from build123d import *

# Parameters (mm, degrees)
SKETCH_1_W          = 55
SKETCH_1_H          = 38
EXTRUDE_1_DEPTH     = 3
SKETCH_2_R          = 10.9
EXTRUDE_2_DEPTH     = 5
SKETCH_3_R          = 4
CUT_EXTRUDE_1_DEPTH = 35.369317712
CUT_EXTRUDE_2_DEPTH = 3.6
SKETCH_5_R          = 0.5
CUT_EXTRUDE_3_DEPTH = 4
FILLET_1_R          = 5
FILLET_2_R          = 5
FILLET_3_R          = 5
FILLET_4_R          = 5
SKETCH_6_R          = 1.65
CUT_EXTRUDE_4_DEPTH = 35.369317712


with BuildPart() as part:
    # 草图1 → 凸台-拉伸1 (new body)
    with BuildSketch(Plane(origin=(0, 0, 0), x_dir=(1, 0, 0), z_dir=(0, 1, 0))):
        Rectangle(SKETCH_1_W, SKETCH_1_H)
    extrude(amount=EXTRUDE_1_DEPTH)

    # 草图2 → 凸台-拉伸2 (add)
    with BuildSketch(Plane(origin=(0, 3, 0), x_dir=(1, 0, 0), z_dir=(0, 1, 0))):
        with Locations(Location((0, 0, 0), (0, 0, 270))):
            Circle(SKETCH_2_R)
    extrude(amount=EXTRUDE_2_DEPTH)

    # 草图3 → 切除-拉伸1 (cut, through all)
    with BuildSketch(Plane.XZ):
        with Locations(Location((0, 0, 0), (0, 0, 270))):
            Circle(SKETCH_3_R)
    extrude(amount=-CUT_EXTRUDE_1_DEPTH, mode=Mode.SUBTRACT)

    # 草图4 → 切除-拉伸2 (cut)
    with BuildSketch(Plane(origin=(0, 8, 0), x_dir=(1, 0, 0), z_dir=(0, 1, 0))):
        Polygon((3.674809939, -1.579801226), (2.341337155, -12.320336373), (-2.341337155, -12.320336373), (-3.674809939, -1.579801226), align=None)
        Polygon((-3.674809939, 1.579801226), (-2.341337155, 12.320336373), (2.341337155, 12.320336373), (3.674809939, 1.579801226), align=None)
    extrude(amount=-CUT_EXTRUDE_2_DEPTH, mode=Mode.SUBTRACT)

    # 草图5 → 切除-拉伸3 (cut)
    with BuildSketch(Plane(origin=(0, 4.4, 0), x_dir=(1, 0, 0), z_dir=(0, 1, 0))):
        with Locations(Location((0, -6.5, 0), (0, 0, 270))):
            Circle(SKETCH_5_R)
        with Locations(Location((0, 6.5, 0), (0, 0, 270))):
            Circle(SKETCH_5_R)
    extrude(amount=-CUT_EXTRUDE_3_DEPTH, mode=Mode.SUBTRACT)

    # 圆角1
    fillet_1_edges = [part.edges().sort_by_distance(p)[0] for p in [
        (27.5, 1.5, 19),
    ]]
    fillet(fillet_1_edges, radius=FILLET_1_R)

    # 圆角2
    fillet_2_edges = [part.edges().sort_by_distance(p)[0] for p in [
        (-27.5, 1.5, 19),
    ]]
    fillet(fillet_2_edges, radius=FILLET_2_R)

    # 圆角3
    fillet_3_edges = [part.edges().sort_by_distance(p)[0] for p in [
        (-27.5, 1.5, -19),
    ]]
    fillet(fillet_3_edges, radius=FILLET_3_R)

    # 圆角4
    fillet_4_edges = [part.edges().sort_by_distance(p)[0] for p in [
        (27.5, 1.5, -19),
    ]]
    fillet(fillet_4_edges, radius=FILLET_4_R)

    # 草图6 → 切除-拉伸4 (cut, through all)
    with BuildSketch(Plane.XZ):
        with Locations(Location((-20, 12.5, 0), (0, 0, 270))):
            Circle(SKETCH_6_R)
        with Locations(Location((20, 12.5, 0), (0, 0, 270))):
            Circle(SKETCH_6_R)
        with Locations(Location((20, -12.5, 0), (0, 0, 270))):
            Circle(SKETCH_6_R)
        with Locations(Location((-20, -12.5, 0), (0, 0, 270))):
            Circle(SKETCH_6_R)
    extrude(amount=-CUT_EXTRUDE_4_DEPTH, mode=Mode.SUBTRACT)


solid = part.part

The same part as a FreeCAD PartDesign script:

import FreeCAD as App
import Part
import Sketcher
Q = App.Units.Quantity


def edges_at(feature, points):
    """Names of the edges that pass closest to the given points."""
    edges = feature.Shape.Edges
    near = lambda p: min(range(len(edges)), key=lambda i: edges[i].distToShape(Part.Vertex(*p))[0])
    return sorted({f"Edge{near(p) + 1}" for p in points})


def add_polygon(sketch, points):
    """Adds a closed chain of lines whose ends are joined by coincident constraints."""
    first, n = sketch.GeometryCount, len(points)
    for a, b in zip(points, points[1:] + points[:1]):
        sketch.addGeometry(Part.LineSegment(App.Vector(*a, 0), App.Vector(*b, 0)), False)
    for i in range(n):
        sketch.addConstraint(Sketcher.Constraint("Coincident", first + i, 2, first + (i + 1) % n, 1))

doc = App.newDocument("Part")
body = doc.addObject("PartDesign::Body", "Body")

# Sketch on XZ plane
sketch1 = body.newObject("Sketcher::SketchObject", "Sketch")
sketch1.AttachmentSupport = (doc.getObject("XZ_Plane"), [""])
sketch1.MapMode = "FlatFace"
add_polygon(sketch1, [(-28, -19), (-28, 19), (28, 19), (28, -19)])  # lines 0-3
sketch1.addConstraint([
    Sketcher.Constraint("Vertical", 0),
    Sketcher.Constraint("Horizontal", 1),
    Sketcher.Constraint("Vertical", 2),
    Sketcher.Constraint("Horizontal", 3),
    Sketcher.Constraint("Symmetric", 0, 2, 2, 2, -1, 1),
    Sketcher.Constraint("DistanceX", 1, 1, 1, 2, Q("55 mm")),
    Sketcher.Constraint("DistanceY", 0, 1, 0, 2, Q("38 mm")),
])
pad1 = body.newObject("PartDesign::Pad", "Pad")
pad1.Profile = sketch1
pad1.Length = 3
pad1.Reversed = True

# Sketch on XZ plane
sketch2 = body.newObject("Sketcher::SketchObject", "Sketch001")
sketch2.AttachmentSupport = (doc.getObject("XZ_Plane"), [""])
sketch2.MapMode = "FlatFace"
sketch2.AttachmentOffset = App.Placement(App.Vector(0, 0, -3), App.Rotation())
sketch2.addGeometry(Part.Circle(App.Vector(0, 0, 0), App.Vector(0, 0, 1), 11), False)
sketch2.addConstraint([
    Sketcher.Constraint("Coincident", 0, 3, -1, 1),
    Sketcher.Constraint("Diameter", 0, Q("21.8 mm")),
])
pad2 = body.newObject("PartDesign::Pad", "Pad001")
pad2.Profile = sketch2
pad2.Length = 5
pad2.Reversed = True

# Sketch on XZ plane
sketch3 = body.newObject("Sketcher::SketchObject", "Sketch002")
sketch3.AttachmentSupport = (doc.getObject("XZ_Plane"), [""])
sketch3.MapMode = "FlatFace"
sketch3.addGeometry(Part.Circle(App.Vector(0, 0, 0), App.Vector(0, 0, 1), 4), False)
sketch3.addConstraint([
    Sketcher.Constraint("Coincident", 0, 3, -1, 1),
    Sketcher.Constraint("Diameter", 0, Q("8 mm")),
])
pocket1 = body.newObject("PartDesign::Pocket", "Pocket")
pocket1.Profile = sketch3
pocket1.Type = "ThroughAll"

# Sketch on XZ plane
sketch4 = body.newObject("Sketcher::SketchObject", "Sketch003")
sketch4.AttachmentSupport = (doc.getObject("XZ_Plane"), [""])
sketch4.MapMode = "FlatFace"
sketch4.AttachmentOffset = App.Placement(App.Vector(0, 0, -8), App.Rotation())
add_polygon(sketch4, [(2.3, 12.3), (3.7, 1.6), (-3.7, 1.6), (-2.3, 12.3)])  # lines 0-3
add_polygon(sketch4, [(-2.3, -12.3), (-3.7, -1.6), (3.7, -1.6), (2.3, -12.3)])  # lines 4-7
sketch4.addConstraint([
    Sketcher.Constraint("Horizontal", 1),
    Sketcher.Constraint("Horizontal", 3),
    Sketcher.Constraint("Horizontal", 5),
    Sketcher.Constraint("Horizontal", 7),
    Sketcher.Constraint("Symmetric", 0, 2, 4, 2, -1, 1),
    Sketcher.Constraint("Symmetric", 2, 2, 6, 2, -1, 1),
    Sketcher.Constraint("Parallel", 0, 4),
    Sketcher.Constraint("Parallel", 2, 6),
    Sketcher.Constraint("Vertical", 1, 2, 4, 2),
    Sketcher.Constraint("Vertical", 3, 2, 6, 2),
    Sketcher.Constraint("DistanceX", 1, 2, 1, 1, Q("7.34962 mm")),
    Sketcher.Constraint("DistanceY", -1, 1, 0, 2, Q("1.579801 mm")),
    Sketcher.Constraint("DistanceX", 3, 1, 3, 2, Q("4.682674 mm")),
    Sketcher.Constraint("Distance", 0, Q("10.822996 mm")),
])
pocket2 = body.newObject("PartDesign::Pocket", "Pocket001")
pocket2.Profile = sketch4
pocket2.Length = 3.6
pocket2.Reversed = True

# Sketch on XZ plane
sketch5 = body.newObject("Sketcher::SketchObject", "Sketch004")
sketch5.AttachmentSupport = (doc.getObject("XZ_Plane"), [""])
sketch5.MapMode = "FlatFace"
sketch5.AttachmentOffset = App.Placement(App.Vector(0, 0, -4.4), App.Rotation())
sketch5.addGeometry([
    Part.Circle(App.Vector(0, 6.5, 0), App.Vector(0, 0, 1), 0.5),
    Part.Circle(App.Vector(0, -6.5, 0), App.Vector(0, 0, 1), 0.5),
], False)
sketch5.addConstraint([
    Sketcher.Constraint("Equal", 0, 1),
    Sketcher.Constraint("Symmetric", 0, 3, 1, 3, -1, 1),
    Sketcher.Constraint("PointOnObject", 0, 3, -2),
    Sketcher.Constraint("Diameter", 0, Q("1 mm")),
    Sketcher.Constraint("DistanceY", 1, 3, 0, 3, Q("13 mm")),
])
pocket3 = body.newObject("PartDesign::Pocket", "Pocket002")
pocket3.Profile = sketch5
pocket3.Length = 4
pocket3.Reversed = True
doc.recompute()

fillet = body.newObject("PartDesign::Fillet", "Fillet")
fillet.Base = (pocket3, edges_at(pocket3, [(27.5, 1.5, 19)]))
fillet.Radius = 5
doc.recompute()

fillet2 = body.newObject("PartDesign::Fillet", "Fillet001")
fillet2.Base = (fillet, edges_at(fillet, [(-27.5, 1.5, 19)]))
fillet2.Radius = 5
doc.recompute()

fillet3 = body.newObject("PartDesign::Fillet", "Fillet002")
fillet3.Base = (fillet2, edges_at(fillet2, [(-27.5, 1.5, -19)]))
fillet3.Radius = 5
doc.recompute()

fillet4 = body.newObject("PartDesign::Fillet", "Fillet003")
fillet4.Base = (fillet3, edges_at(fillet3, [(27.5, 1.5, -19)]))
fillet4.Radius = 5

# Sketch on XZ plane
sketch6 = body.newObject("Sketcher::SketchObject", "Sketch005")
sketch6.AttachmentSupport = (doc.getObject("XZ_Plane"), [""])
sketch6.MapMode = "FlatFace"
sketch6.addGeometry([
    Part.Circle(App.Vector(-20, 12.5, 0), App.Vector(0, 0, 1), 1.6),
    Part.Circle(App.Vector(20, 12.5, 0), App.Vector(0, 0, 1), 1.6),
    Part.Circle(App.Vector(20, -12.5, 0), App.Vector(0, 0, 1), 1.6),
    Part.Circle(App.Vector(-20, -12.5, 0), App.Vector(0, 0, 1), 1.6),
], False)
sketch6.addConstraint([
    Sketcher.Constraint("Equal", 0, 1),
    Sketcher.Constraint("Equal", 1, 2),
    Sketcher.Constraint("Equal", 2, 3),
    Sketcher.Constraint("Symmetric", 0, 3, 2, 3, -1, 1),
    Sketcher.Constraint("Symmetric", 1, 3, 3, 3, -1, 1),
    Sketcher.Constraint("Symmetric", 0, 3, 1, 3, -2),
    Sketcher.Constraint("Diameter", 0, Q("3.3 mm")),
    Sketcher.Constraint("DistanceX", 0, 3, -1, 1, Q("20 mm")),
    Sketcher.Constraint("DistanceY", 2, 3, 1, 3, Q("25 mm")),
])
pocket4 = body.newObject("PartDesign::Pocket", "Pocket003")
pocket4.Profile = sketch6
pocket4.Type = "ThroughAll"

doc.recompute()
